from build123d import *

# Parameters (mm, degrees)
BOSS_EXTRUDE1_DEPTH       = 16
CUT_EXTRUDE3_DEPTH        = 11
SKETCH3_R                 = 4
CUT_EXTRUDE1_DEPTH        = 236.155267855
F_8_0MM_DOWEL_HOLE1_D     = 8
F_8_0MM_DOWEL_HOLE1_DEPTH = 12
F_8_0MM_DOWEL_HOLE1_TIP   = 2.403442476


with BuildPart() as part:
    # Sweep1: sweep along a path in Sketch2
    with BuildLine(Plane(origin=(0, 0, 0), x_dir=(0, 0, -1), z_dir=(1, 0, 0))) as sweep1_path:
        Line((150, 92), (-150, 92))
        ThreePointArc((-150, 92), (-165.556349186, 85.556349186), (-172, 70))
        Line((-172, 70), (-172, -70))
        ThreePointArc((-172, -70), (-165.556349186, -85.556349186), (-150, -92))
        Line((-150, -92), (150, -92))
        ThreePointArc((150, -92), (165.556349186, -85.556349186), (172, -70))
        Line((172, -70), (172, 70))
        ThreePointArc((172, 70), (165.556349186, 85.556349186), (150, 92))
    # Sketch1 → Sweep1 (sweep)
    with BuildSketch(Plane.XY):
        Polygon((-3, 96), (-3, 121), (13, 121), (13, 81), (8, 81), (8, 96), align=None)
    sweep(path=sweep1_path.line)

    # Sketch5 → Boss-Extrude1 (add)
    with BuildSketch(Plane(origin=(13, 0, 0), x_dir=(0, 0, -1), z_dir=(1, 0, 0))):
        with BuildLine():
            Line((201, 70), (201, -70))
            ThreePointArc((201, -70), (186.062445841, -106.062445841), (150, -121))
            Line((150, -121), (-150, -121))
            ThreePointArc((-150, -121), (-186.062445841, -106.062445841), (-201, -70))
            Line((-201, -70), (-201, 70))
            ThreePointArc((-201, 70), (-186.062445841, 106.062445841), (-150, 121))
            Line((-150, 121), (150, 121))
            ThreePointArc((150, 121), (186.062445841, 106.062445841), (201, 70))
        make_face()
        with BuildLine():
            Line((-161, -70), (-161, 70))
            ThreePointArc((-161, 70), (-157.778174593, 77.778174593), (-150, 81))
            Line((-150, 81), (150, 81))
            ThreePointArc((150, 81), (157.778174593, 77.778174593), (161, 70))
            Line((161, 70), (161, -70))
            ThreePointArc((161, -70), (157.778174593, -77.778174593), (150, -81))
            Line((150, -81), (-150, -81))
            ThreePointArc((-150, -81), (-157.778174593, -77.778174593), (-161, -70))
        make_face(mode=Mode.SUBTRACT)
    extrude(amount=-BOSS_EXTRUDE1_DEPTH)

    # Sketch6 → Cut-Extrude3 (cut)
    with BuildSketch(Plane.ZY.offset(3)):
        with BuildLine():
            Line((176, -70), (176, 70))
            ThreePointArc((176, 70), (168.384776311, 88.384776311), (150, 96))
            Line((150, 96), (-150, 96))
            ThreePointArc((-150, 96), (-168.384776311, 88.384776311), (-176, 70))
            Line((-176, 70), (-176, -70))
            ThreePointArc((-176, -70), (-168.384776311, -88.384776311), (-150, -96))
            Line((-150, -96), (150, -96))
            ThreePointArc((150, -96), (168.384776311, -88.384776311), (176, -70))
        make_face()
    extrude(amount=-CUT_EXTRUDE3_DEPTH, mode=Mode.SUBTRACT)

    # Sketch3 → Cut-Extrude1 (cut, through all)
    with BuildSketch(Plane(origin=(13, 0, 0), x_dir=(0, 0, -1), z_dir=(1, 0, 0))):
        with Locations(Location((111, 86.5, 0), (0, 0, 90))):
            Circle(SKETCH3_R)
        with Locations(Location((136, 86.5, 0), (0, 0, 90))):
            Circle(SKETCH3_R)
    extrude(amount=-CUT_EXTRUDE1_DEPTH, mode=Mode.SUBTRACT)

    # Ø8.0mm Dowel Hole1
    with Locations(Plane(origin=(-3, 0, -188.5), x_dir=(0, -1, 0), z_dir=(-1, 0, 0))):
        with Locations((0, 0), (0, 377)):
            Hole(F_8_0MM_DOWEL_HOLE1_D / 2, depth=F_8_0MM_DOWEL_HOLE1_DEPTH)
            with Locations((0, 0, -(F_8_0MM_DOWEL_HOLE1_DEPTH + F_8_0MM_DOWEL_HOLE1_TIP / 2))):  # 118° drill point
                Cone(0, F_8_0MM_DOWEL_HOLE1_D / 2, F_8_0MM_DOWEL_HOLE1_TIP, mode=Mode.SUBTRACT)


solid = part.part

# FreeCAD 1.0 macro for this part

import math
import FreeCAD as App
import Part
import Sketcher

V = App.Vector

doc = App.newDocument("Part")
body = doc.addObject("PartDesign::Body", "Body")

# Sketch on XY plane
sketch1 = body.newObject("Sketcher::SketchObject", "Sketch")
sketch1.AttachmentSupport = (doc.getObject("XY_Plane"), [""])
sketch1.MapMode = "FlatFace"
sketch1.addGeometry(Part.LineSegment(V(-3, 121, 0), V(-3, 96, 0)), False)
sketch1.addGeometry(Part.LineSegment(V(-3, 96, 0), V(8, 96, 0)), False)
sketch1.addGeometry(Part.LineSegment(V(8, 96, 0), V(8, 81, 0)), False)
sketch1.addGeometry(Part.LineSegment(V(8, 81, 0), V(13, 81, 0)), False)
sketch1.addGeometry(Part.LineSegment(V(13, 81, 0), V(13, 121, 0)), False)
sketch1.addGeometry(Part.LineSegment(V(13, 121, 0), V(-3, 121, 0)), False)
sketch1.addConstraint(Sketcher.Constraint("Coincident", 0, 2, 1, 1))
sketch1.addConstraint(Sketcher.Constraint("Coincident", 1, 2, 2, 1))
sketch1.addConstraint(Sketcher.Constraint("Coincident", 2, 2, 3, 1))
sketch1.addConstraint(Sketcher.Constraint("Coincident", 3, 2, 4, 1))
sketch1.addConstraint(Sketcher.Constraint("Coincident", 4, 2, 5, 1))
sketch1.addConstraint(Sketcher.Constraint("Coincident", 5, 2, 0, 1))
sketch1.addConstraint(Sketcher.Constraint("Vertical", 0))
sketch1.addConstraint(Sketcher.Constraint("Horizontal", 1))
sketch1.addConstraint(Sketcher.Constraint("Vertical", 2))
sketch1.addConstraint(Sketcher.Constraint("Horizontal", 3))
sketch1.addConstraint(Sketcher.Constraint("Vertical", 4))
sketch1.addConstraint(Sketcher.Constraint("Horizontal", 5))
sketch1.addConstraint(Sketcher.Constraint("DistanceX", 1, 1, 1, 2, 11.0))
sketch1.addConstraint(Sketcher.Constraint("DistanceX", 3, 1, 3, 2, 5.0))
sketch1.addConstraint(Sketcher.Constraint("DistanceY", 0, 2, 0, 1, 25.0))
sketch1.addConstraint(Sketcher.Constraint("DistanceY", 2, 2, 2, 1, 15.0))
sketch1.addConstraint(Sketcher.Constraint("DistanceX", 0, 2, -1, 1, 3.0))
sketch1.addConstraint(Sketcher.Constraint("DistanceY", -1, 1, 0, 2, 96.0))

# Sketch on YZ plane
sketch2 = body.newObject("Sketcher::SketchObject", "Sketch001")
sketch2.AttachmentSupport = (doc.getObject("YZ_Plane"), [""])
sketch2.MapMode = "FlatFace"
sketch2.addGeometry(Part.LineSegment(V(92, -150, 0), V(92, 150, 0)), False)
sketch2.addGeometry(Part.ArcOfCircle(Part.Circle(V(70, 150, 0), V(0, 0, 1), 22), math.radians(0), math.radians(90)), False)
sketch2.addGeometry(Part.LineSegment(V(70, 172, 0), V(-70, 172, 0)), False)
sketch2.addGeometry(Part.ArcOfCircle(Part.Circle(V(-70, 150, 0), V(0, 0, 1), 22), math.radians(90), math.radians(180)), False)
sketch2.addGeometry(Part.LineSegment(V(-92, 150, 0), V(-92, -150, 0)), False)
sketch2.addGeometry(Part.ArcOfCircle(Part.Circle(V(-70, -150, 0), V(0, 0, 1), 22), math.radians(180), math.radians(270)), False)
sketch2.addGeometry(Part.LineSegment(V(-70, -172, 0), V(70, -172, 0)), False)
sketch2.addGeometry(Part.ArcOfCircle(Part.Circle(V(70, -150, 0), V(0, 0, 1), 22), math.radians(-90), math.radians(0)), False)
sketch2.addConstraint(Sketcher.Constraint("Tangent", 0, 2, 1, 1))
sketch2.addConstraint(Sketcher.Constraint("Tangent", 1, 2, 2, 1))
sketch2.addConstraint(Sketcher.Constraint("Tangent", 2, 2, 3, 1))
sketch2.addConstraint(Sketcher.Constraint("Tangent", 3, 2, 4, 1))
sketch2.addConstraint(Sketcher.Constraint("Tangent", 4, 2, 5, 1))
sketch2.addConstraint(Sketcher.Constraint("Tangent", 5, 2, 6, 1))
sketch2.addConstraint(Sketcher.Constraint("Tangent", 6, 2, 7, 1))
sketch2.addConstraint(Sketcher.Constraint("Tangent", 7, 2, 0, 1))
sketch2.addConstraint(Sketcher.Constraint("Vertical", 0))
sketch2.addConstraint(Sketcher.Constraint("Horizontal", 2))
sketch2.addConstraint(Sketcher.Constraint("Vertical", 4))
sketch2.addConstraint(Sketcher.Constraint("Horizontal", 6))
sketch2.addConstraint(Sketcher.Constraint("Equal", 1, 3))
sketch2.addConstraint(Sketcher.Constraint("Equal", 3, 5))
sketch2.addConstraint(Sketcher.Constraint("Equal", 5, 7))
sketch2.addConstraint(Sketcher.Constraint("Symmetric", 1, 3, 5, 3, -1, 1))
sketch2.addConstraint(Sketcher.Constraint("Radius", 1, 22.0))
sketch2.addConstraint(Sketcher.Constraint("DistanceX", 2, 2, 2, 1, 140.0))
sketch2.addConstraint(Sketcher.Constraint("DistanceY", 0, 1, 0, 2, 300.0))
doc.recompute()

additivepipe = body.newObject("PartDesign::AdditivePipe", "AdditivePipe")
additivepipe.Profile = sketch1
additivepipe.Spine = (sketch2, ["Edge1", "Edge2", "Edge3", "Edge4", "Edge5", "Edge6", "Edge7", "Edge8"])

# Sketch on YZ plane
sketch3 = body.newObject("Sketcher::SketchObject", "Sketch002")
sketch3.AttachmentSupport = (doc.getObject("YZ_Plane"), [""])
sketch3.MapMode = "FlatFace"
sketch3.AttachmentOffset = App.Placement(V(0, 0, 13), App.Rotation())
sketch3.addGeometry(Part.LineSegment(V(-70, -201, 0), V(70, -201, 0)), False)
sketch3.addGeometry(Part.ArcOfCircle(Part.Circle(V(70, -150, 0), V(0, 0, 1), 51), math.radians(-90), math.radians(0)), False)
sketch3.addGeometry(Part.LineSegment(V(121, -150, 0), V(121, 150, 0)), False)
sketch3.addGeometry(Part.ArcOfCircle(Part.Circle(V(70, 150, 0), V(0, 0, 1), 51), math.radians(0), math.radians(90)), False)
sketch3.addGeometry(Part.LineSegment(V(70, 201, 0), V(-70, 201, 0)), False)
sketch3.addGeometry(Part.ArcOfCircle(Part.Circle(V(-70, 150, 0), V(0, 0, 1), 51), math.radians(90), math.radians(180)), False)
sketch3.addGeometry(Part.LineSegment(V(-121, 150, 0), V(-121, -150, 0)), False)
sketch3.addGeometry(Part.ArcOfCircle(Part.Circle(V(-70, -150, 0), V(0, 0, 1), 51), math.radians(180), math.radians(270)), False)
sketch3.addGeometry(Part.LineSegment(V(-70, 161, 0), V(70, 161, 0)), False)
sketch3.addGeometry(Part.ArcOfCircle(Part.Circle(V(70, 150, 0), V(0, 0, 1), 11), math.radians(0), math.radians(90)), False)
sketch3.addGeometry(Part.LineSegment(V(81, 150, 0), V(81, -150, 0)), False)
sketch3.addGeometry(Part.ArcOfCircle(Part.Circle(V(70, -150, 0), V(0, 0, 1), 11), math.radians(-90), math.radians(0)), False)
sketch3.addGeometry(Part.LineSegment(V(70, -161, 0), V(-70, -161, 0)), False)
sketch3.addGeometry(Part.ArcOfCircle(Part.Circle(V(-70, -150, 0), V(0, 0, 1), 11), math.radians(180), math.radians(270)), False)
sketch3.addGeometry(Part.LineSegment(V(-81, -150, 0), V(-81, 150, 0)), False)
sketch3.addGeometry(Part.ArcOfCircle(Part.Circle(V(-70, 150, 0), V(0, 0, 1), 11), math.radians(90), math.radians(180)), False)
sketch3.addConstraint(Sketcher.Constraint("Tangent", 0, 2, 1, 1))
sketch3.addConstraint(Sketcher.Constraint("Tangent", 1, 2, 2, 1))
sketch3.addConstraint(Sketcher.Constraint("Tangent", 2, 2, 3, 1))
sketch3.addConstraint(Sketcher.Constraint("Tangent", 3, 2, 4, 1))
sketch3.addConstraint(Sketcher.Constraint("Tangent", 4, 2, 5, 1))
sketch3.addConstraint(Sketcher.Constraint("Tangent", 5, 2, 6, 1))
sketch3.addConstraint(Sketcher.Constraint("Tangent", 6, 2, 7, 1))
sketch3.addConstraint(Sketcher.Constraint("Tangent", 7, 2, 0, 1))
sketch3.addConstraint(Sketcher.Constraint("Tangent", 8, 2, 9, 2))
sketch3.addConstraint(Sketcher.Constraint("Tangent", 9, 1, 10, 1))
sketch3.addConstraint(Sketcher.Constraint("Tangent", 10, 2, 11, 2))
sketch3.addConstraint(Sketcher.Constraint("Tangent", 11, 1, 12, 1))
sketch3.addConstraint(Sketcher.Constraint("Tangent", 12, 2, 13, 2))
sketch3.addConstraint(Sketcher.Constraint("Tangent", 13, 1, 14, 1))
sketch3.addConstraint(Sketcher.Constraint("Tangent", 14, 2, 15, 2))
sketch3.addConstraint(Sketcher.Constraint("Tangent", 15, 1, 8, 1))
sketch3.addConstraint(Sketcher.Constraint("Horizontal", 0))
sketch3.addConstraint(Sketcher.Constraint("Vertical", 2))
sketch3.addConstraint(Sketcher.Constraint("Horizontal", 4))
sketch3.addConstraint(Sketcher.Constraint("Vertical", 6))
sketch3.addConstraint(Sketcher.Constraint("Horizontal", 8))
sketch3.addConstraint(Sketcher.Constraint("Vertical", 10))
sketch3.addConstraint(Sketcher.Constraint("Horizontal", 12))
sketch3.addConstraint(Sketcher.Constraint("Vertical", 14))
sketch3.addConstraint(Sketcher.Constraint("Coincident", 9, 3, 3, 3))
sketch3.addConstraint(Sketcher.Constraint("Coincident", 11, 3, 1, 3))
sketch3.addConstraint(Sketcher.Constraint("Coincident", 13, 3, 7, 3))
sketch3.addConstraint(Sketcher.Constraint("Equal", 1, 3))
sketch3.addConstraint(Sketcher.Constraint("Equal", 3, 5))
sketch3.addConstraint(Sketcher.Constraint("Equal", 5, 7))
sketch3.addConstraint(Sketcher.Constraint("Equal", 13, 15))
sketch3.addConstraint(Sketcher.Constraint("Symmetric", 1, 3, 5, 3, -1, 1))
sketch3.addConstraint(Sketcher.Constraint("Radius", 1, 51.0))
sketch3.addConstraint(Sketcher.Constraint("Radius", 9, 11.0))
sketch3.addConstraint(Sketcher.Constraint("DistanceX", 0, 1, 0, 2, 140.0))
sketch3.addConstraint(Sketcher.Constraint("DistanceY", 2, 1, 2, 2, 300.0))
pad1 = body.newObject("PartDesign::Pad", "Pad")
pad1.Profile = sketch3
pad1.Length = 16
pad1.Reversed = True

# Sketch on YZ plane
sketch4 = body.newObject("Sketcher::SketchObject", "Sketch003")
sketch4.AttachmentSupport = (doc.getObject("YZ_Plane"), [""])
sketch4.MapMode = "FlatFace"
sketch4.AttachmentOffset = App.Placement(V(0, 0, -3), App.Rotation())
sketch4.addGeometry(Part.LineSegment(V(-70, 176, 0), V(70, 176, 0)), False)
sketch4.addGeometry(Part.ArcOfCircle(Part.Circle(V(70, 150, 0), V(0, 0, 1), 26), math.radians(0), math.radians(90)), False)
sketch4.addGeometry(Part.LineSegment(V(96, 150, 0), V(96, -150, 0)), False)
sketch4.addGeometry(Part.ArcOfCircle(Part.Circle(V(70, -150, 0), V(0, 0, 1), 26), math.radians(-90), math.radians(0)), False)
sketch4.addGeometry(Part.LineSegment(V(70, -176, 0), V(-70, -176, 0)), False)
sketch4.addGeometry(Part.ArcOfCircle(Part.Circle(V(-70, -150, 0), V(0, 0, 1), 26), math.radians(180), math.radians(270)), False)
sketch4.addGeometry(Part.LineSegment(V(-96, -150, 0), V(-96, 150, 0)), False)
sketch4.addGeometry(Part.ArcOfCircle(Part.Circle(V(-70, 150, 0), V(0, 0, 1), 26), math.radians(90), math.radians(180)), False)
sketch4.addConstraint(Sketcher.Constraint("Tangent", 0, 2, 1, 2))
sketch4.addConstraint(Sketcher.Constraint("Tangent", 1, 1, 2, 1))
sketch4.addConstraint(Sketcher.Constraint("Tangent", 2, 2, 3, 2))
sketch4.addConstraint(Sketcher.Constraint("Tangent", 3, 1, 4, 1))
sketch4.addConstraint(Sketcher.Constraint("Tangent", 4, 2, 5, 2))
sketch4.addConstraint(Sketcher.Constraint("Tangent", 5, 1, 6, 1))
sketch4.addConstraint(Sketcher.Constraint("Tangent", 6, 2, 7, 2))
sketch4.addConstraint(Sketcher.Constraint("Tangent", 7, 1, 0, 1))
sketch4.addConstraint(Sketcher.Constraint("Horizontal", 0))
sketch4.addConstraint(Sketcher.Constraint("Vertical", 2))
sketch4.addConstraint(Sketcher.Constraint("Horizontal", 4))
sketch4.addConstraint(Sketcher.Constraint("Vertical", 6))
sketch4.addConstraint(Sketcher.Constraint("Equal", 1, 3))
sketch4.addConstraint(Sketcher.Constraint("Equal", 3, 5))
sketch4.addConstraint(Sketcher.Constraint("Equal", 5, 7))
sketch4.addConstraint(Sketcher.Constraint("Symmetric", 1, 3, 5, 3, -1, 1))
sketch4.addConstraint(Sketcher.Constraint("Radius", 1, 26.0))
sketch4.addConstraint(Sketcher.Constraint("DistanceX", 0, 1, 0, 2, 140.0))
sketch4.addConstraint(Sketcher.Constraint("DistanceY", 2, 2, 2, 1, 300.0))
pocket1 = body.newObject("PartDesign::Pocket", "Pocket")
pocket1.Profile = sketch4
pocket1.Length = 11
pocket1.Reversed = True

# Sketch on YZ plane
sketch5 = body.newObject("Sketcher::SketchObject", "Sketch004")
sketch5.AttachmentSupport = (doc.getObject("YZ_Plane"), [""])
sketch5.MapMode = "FlatFace"
sketch5.AttachmentOffset = App.Placement(V(0, 0, 13), App.Rotation())
sketch5.addGeometry(Part.Circle(V(86.5, -111, 0), V(0, 0, 1), 4), False)
sketch5.addGeometry(Part.Circle(V(86.5, -136, 0), V(0, 0, 1), 4), False)
sketch5.addConstraint(Sketcher.Constraint("Equal", 0, 1))
sketch5.addConstraint(Sketcher.Constraint("Vertical", 0, 3, 1, 3))
sketch5.addConstraint(Sketcher.Constraint("Diameter", 0, 8.0))
sketch5.addConstraint(Sketcher.Constraint("DistanceY", 0, 3, -1, 1, 111.0))
sketch5.addConstraint(Sketcher.Constraint("DistanceY", 1, 3, -1, 1, 136.0))
sketch5.addConstraint(Sketcher.Constraint("DistanceX", -1, 1, 0, 3, 86.5))
pocket2 = body.newObject("PartDesign::Pocket", "Pocket001")
pocket2.Profile = sketch5
pocket2.Type = "ThroughAll"

# Sketch on YZ plane
sketch6 = body.newObject("Sketcher::SketchObject", "Sketch005")
sketch6.AttachmentSupport = (doc.getObject("YZ_Plane"), [""])
sketch6.MapMode = "FlatFace"
sketch6.AttachmentOffset = App.Placement(V(0, 0, -3), App.Rotation())
sketch6.addGeometry(Part.Circle(V(0, -188.5, 0), V(0, 0, 1), 4), False)
sketch6.addGeometry(Part.Circle(V(0, 188.5, 0), V(0, 0, 1), 4), False)
sketch6.addConstraint(Sketcher.Constraint("Equal", 0, 1))
sketch6.addConstraint(Sketcher.Constraint("Symmetric", 0, 3, 1, 3, -1, 1))
sketch6.addConstraint(Sketcher.Constraint("PointOnObject", 0, 3, -2))
sketch6.addConstraint(Sketcher.Constraint("Diameter", 0, 8.0))
sketch6.addConstraint(Sketcher.Constraint("DistanceY", 0, 3, 1, 3, 377.0))
doc.recompute()
hole = body.newObject("PartDesign::Hole", "Hole")
hole.Profile = sketch6
hole.ThreadType = "None"
hole.Diameter = 8
hole.DepthType = "Dimension"
hole.Depth = 12
hole.DrillPoint = "Angled"
hole.DrillPointAngle = 118
hole.Reversed = True

doc.recompute()
